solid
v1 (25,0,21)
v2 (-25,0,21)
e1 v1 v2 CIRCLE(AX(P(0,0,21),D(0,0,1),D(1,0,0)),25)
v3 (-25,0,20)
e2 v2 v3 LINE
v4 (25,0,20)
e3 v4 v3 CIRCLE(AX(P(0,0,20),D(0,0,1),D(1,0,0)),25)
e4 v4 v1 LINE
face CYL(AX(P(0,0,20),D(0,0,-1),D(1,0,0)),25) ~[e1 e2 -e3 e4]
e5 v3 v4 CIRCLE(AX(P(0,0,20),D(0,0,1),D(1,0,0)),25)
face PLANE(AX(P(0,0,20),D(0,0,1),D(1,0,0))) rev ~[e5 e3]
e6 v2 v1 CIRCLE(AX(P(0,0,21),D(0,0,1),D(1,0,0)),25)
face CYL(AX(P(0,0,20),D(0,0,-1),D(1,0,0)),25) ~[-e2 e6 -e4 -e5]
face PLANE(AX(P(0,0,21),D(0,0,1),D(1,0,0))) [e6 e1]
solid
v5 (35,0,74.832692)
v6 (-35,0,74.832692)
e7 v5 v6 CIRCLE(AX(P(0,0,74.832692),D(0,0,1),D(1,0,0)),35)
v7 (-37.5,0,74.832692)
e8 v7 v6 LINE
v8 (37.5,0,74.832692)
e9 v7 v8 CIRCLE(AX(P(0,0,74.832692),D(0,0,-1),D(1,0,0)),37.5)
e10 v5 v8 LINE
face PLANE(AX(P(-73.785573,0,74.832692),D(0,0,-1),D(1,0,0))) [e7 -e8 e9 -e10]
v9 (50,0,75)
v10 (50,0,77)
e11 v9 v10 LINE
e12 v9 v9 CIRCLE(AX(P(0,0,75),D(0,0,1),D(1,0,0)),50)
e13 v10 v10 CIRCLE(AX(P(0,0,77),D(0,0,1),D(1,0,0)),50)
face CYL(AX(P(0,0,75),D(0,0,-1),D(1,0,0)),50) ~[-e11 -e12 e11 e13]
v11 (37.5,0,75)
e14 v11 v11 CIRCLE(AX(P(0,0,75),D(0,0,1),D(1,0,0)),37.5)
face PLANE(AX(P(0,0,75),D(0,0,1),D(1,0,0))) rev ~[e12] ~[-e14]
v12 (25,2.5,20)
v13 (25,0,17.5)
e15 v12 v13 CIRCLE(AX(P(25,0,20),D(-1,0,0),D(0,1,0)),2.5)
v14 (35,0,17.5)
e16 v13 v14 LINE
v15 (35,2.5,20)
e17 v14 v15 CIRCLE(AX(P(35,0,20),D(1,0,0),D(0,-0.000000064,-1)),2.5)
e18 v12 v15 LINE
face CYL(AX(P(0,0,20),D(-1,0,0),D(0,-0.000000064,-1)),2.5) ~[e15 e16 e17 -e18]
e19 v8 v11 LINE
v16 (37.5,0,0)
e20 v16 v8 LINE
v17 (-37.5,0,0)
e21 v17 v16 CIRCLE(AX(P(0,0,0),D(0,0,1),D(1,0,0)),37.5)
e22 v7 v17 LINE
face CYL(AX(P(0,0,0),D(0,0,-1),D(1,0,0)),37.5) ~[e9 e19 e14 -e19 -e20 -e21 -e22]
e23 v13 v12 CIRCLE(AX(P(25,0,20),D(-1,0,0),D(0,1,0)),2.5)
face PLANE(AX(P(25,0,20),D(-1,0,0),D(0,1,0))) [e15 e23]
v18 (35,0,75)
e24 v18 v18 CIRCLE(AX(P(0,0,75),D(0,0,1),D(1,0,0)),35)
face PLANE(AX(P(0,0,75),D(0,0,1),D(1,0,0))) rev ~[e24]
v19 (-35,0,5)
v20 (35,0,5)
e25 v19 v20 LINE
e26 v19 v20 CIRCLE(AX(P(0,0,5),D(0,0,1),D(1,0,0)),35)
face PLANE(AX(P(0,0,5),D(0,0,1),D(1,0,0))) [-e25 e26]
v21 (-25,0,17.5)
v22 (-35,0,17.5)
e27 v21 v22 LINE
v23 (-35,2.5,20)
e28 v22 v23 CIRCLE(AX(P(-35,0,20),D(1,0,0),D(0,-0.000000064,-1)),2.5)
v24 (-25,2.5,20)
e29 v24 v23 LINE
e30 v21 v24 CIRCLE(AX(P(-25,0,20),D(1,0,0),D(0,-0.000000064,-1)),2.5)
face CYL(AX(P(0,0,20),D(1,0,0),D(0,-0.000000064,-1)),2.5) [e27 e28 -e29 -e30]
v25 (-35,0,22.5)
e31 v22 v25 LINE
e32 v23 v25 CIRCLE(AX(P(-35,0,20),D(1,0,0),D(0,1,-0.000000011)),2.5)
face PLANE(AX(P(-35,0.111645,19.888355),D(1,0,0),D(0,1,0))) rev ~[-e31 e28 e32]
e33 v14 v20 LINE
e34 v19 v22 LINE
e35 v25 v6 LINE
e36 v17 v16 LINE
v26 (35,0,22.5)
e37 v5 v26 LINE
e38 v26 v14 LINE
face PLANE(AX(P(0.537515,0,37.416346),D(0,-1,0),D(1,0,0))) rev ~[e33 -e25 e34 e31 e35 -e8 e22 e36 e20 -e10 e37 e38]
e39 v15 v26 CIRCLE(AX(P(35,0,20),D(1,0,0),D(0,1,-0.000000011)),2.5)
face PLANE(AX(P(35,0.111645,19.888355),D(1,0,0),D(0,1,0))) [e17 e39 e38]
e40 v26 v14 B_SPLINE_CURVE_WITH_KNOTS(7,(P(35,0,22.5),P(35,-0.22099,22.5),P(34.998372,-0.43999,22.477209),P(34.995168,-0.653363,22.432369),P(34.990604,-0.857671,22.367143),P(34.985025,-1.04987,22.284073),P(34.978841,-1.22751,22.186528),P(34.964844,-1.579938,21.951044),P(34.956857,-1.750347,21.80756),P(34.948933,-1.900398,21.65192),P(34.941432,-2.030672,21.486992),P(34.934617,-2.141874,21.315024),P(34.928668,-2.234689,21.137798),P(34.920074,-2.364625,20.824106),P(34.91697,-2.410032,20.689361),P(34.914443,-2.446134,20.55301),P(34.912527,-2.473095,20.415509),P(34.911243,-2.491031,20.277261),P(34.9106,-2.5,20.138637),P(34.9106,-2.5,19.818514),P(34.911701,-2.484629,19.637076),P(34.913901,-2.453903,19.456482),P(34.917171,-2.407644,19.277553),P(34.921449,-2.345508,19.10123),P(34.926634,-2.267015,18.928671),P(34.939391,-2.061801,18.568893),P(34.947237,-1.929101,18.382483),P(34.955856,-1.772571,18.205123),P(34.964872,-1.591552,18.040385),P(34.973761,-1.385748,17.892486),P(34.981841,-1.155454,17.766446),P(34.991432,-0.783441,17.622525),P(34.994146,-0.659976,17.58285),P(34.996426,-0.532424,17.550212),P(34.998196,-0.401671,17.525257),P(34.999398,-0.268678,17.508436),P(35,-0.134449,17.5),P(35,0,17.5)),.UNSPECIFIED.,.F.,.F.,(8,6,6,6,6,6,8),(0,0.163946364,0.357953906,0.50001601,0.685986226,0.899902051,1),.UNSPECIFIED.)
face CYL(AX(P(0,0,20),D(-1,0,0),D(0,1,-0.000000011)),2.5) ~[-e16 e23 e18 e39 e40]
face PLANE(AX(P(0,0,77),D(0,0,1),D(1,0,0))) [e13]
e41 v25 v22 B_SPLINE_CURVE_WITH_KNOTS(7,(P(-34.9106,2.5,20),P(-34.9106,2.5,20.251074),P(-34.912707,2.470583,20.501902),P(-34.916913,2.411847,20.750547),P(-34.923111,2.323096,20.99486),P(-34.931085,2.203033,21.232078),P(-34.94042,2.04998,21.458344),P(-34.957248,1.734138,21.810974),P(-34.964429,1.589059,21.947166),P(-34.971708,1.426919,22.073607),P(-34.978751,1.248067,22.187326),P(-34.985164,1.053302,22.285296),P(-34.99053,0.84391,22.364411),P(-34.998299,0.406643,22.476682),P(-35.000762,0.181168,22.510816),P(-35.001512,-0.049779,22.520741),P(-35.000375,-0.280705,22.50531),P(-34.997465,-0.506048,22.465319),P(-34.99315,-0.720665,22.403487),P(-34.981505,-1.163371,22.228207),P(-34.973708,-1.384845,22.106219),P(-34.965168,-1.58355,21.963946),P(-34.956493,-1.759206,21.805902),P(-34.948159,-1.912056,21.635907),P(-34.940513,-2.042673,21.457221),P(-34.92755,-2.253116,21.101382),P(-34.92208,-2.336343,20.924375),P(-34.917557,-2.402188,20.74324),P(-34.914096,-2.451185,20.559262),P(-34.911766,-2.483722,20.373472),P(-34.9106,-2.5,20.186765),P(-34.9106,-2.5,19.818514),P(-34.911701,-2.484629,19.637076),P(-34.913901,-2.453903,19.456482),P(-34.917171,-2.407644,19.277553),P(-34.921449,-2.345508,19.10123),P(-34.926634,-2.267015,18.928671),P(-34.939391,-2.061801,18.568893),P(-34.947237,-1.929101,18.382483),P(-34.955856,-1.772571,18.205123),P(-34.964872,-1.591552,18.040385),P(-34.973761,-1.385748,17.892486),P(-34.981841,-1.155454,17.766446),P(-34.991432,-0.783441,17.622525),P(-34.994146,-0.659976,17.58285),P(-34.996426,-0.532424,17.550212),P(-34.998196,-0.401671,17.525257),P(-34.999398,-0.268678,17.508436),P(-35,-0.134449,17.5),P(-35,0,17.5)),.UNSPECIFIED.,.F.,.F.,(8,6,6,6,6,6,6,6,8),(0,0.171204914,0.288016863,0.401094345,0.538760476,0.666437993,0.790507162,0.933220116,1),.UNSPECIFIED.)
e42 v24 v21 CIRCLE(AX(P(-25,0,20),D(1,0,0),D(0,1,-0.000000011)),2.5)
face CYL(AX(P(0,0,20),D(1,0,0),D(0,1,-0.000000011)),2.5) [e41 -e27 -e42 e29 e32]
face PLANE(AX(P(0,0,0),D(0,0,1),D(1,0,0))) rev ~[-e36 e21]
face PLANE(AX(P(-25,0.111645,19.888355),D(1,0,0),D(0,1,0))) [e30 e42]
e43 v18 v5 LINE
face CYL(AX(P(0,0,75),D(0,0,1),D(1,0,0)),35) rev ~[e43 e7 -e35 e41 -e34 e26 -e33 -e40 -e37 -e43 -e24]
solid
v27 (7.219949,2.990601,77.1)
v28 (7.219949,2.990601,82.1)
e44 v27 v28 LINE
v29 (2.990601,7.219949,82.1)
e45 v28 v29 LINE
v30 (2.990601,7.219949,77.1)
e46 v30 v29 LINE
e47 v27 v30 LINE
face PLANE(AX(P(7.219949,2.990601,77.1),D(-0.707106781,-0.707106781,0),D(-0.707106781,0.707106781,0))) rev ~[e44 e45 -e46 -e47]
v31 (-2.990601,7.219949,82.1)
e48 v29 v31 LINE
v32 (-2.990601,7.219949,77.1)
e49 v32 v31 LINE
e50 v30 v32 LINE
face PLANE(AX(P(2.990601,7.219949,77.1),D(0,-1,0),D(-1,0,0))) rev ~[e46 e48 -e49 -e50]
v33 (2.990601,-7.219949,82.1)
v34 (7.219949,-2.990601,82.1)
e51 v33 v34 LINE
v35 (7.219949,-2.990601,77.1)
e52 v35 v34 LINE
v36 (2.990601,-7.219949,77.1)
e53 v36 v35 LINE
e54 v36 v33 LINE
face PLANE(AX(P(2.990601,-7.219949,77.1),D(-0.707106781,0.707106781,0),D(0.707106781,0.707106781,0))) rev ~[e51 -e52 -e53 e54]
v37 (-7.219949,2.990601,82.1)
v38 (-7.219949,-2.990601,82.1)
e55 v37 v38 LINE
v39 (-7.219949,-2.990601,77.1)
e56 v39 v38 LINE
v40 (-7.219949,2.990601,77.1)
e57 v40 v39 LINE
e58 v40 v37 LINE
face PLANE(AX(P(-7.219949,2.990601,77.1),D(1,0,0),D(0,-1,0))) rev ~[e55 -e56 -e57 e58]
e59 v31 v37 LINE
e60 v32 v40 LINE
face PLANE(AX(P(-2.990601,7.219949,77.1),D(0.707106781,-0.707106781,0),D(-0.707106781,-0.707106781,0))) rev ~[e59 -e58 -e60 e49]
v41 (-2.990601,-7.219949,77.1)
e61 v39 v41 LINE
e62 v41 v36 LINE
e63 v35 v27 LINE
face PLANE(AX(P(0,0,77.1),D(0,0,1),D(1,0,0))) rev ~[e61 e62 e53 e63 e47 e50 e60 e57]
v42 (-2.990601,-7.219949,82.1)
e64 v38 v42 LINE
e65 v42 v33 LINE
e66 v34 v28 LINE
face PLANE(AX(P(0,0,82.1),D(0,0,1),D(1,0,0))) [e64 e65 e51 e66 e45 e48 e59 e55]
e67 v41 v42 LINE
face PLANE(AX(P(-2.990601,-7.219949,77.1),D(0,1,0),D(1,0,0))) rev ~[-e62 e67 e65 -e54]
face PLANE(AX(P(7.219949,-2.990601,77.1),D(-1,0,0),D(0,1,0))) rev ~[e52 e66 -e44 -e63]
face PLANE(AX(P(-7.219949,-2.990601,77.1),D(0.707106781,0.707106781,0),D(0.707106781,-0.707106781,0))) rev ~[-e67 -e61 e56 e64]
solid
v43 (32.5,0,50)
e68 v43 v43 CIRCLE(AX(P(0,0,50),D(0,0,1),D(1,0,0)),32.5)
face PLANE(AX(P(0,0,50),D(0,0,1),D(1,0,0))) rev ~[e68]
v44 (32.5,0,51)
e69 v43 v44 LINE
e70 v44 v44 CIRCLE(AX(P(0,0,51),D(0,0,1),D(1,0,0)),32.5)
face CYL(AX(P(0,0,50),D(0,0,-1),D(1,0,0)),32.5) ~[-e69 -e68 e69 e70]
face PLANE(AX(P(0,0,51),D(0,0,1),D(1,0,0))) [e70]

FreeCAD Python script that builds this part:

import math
import FreeCAD as App
import Part
import Sketcher

V = App.Vector
Q = App.Units.Quantity

doc = App.newDocument("Part")
body = doc.addObject("PartDesign::Body", "Body")
body.AllowCompound = True

# Sketch on XY plane
sketch1 = doc.addObject("Sketcher::SketchObject", "Sketch")
body.addObject(sketch1)
sketch1.AttachmentSupport = (doc.XY_Plane, [""])
sketch1.MapMode = "FlatFace"
sketch1.addGeometry(Part.Circle(V(0, 0, 0), V(0, 0, 1), 38), False)
sketch1.addConstraint([
    Sketcher.Constraint("Coincident", 0, 3, -1, 1),
    Sketcher.Constraint("Diameter", 0, Q("75 mm")),
])
pad1 = doc.addObject("PartDesign::Pad", "Pad")
body.addObject(pad1)
pad1.Profile = sketch1
pad1.Length = 75

# Sketch on XY plane
sketch2 = doc.addObject("Sketcher::SketchObject", "Sketch001")
body.addObject(sketch2)
sketch2.AttachmentSupport = (doc.XY_Plane, [""])
sketch2.MapMode = "FlatFace"
sketch2.AttachmentOffset = App.Placement(V(0, 0, 75), App.Rotation())
sketch2.addGeometry(Part.Circle(V(0, 0, 0), V(0, 0, 1), 35), False)
sketch2.addConstraint([
    Sketcher.Constraint("Coincident", 0, 3, -1, 1),
    Sketcher.Constraint("Diameter", 0, Q("70 mm")),
])
pocket1 = doc.addObject("PartDesign::Pocket", "Pocket")
body.addObject(pocket1)
pocket1.Profile = sketch2
pocket1.Length = 70

# Sketch on XZ plane
sketch3 = doc.addObject("Sketcher::SketchObject", "Sketch002")
body.addObject(sketch3)
sketch3.AttachmentSupport = (doc.XZ_Plane, [""])
sketch3.MapMode = "FlatFace"
sketch3.addGeometry([
    Part.LineSegment(V(-74, 75, 0), V(-74, 0, 0)),
    Part.LineSegment(V(-74, 0, 0), V(75, 0, 0)),
    Part.LineSegment(V(75, 0, 0), V(75, 75, 0)),
    Part.LineSegment(V(75, 75, 0), V(-74, 75, 0)),
], False)
sketch3.addConstraint([
    Sketcher.Constraint("Coincident", 0, 2, 1, 1),
    Sketcher.Constraint("Coincident", 1, 2, 2, 1),
    Sketcher.Constraint("Coincident", 2, 2, 3, 1),
    Sketcher.Constraint("Coincident", 3, 2, 0, 1),
    Sketcher.Constraint("Vertical", 0),
    Sketcher.Constraint("Horizontal", 1),
    Sketcher.Constraint("Vertical", 2),
    Sketcher.Constraint("Horizontal", 3),
    Sketcher.Constraint("PointOnObject", 0, 2, -1),
    Sketcher.Constraint("DistanceX", 1, 1, 1, 2, Q("148.646176 mm")),
    Sketcher.Constraint("DistanceY", 0, 2, 0, 1, Q("74.832693 mm")),
    Sketcher.Constraint("DistanceX", 0, 2, -1, 1, Q("73.785573 mm")),
])
pocket2 = doc.addObject("PartDesign::Pocket", "Pocket001")
body.addObject(pocket2)
pocket2.Profile = sketch3
pocket2.Length = 46

# Sketch on YZ plane
sketch4 = doc.addObject("Sketcher::SketchObject", "Sketch003")
body.addObject(sketch4)
sketch4.AttachmentSupport = (doc.YZ_Plane, [""])
sketch4.MapMode = "FlatFace"
sketch4.addGeometry([
    Part.ArcOfCircle(Part.Circle(V(0, 20, 0), V(0, 0, 1), 2.5), math.radians(-90), math.radians(0)),
    Part.ArcOfCircle(Part.Circle(V(0, 20, 0), V(0, 0, 1), 2.5), math.radians(0), math.radians(270)),
], False)
sketch4.addConstraint([
    Sketcher.Constraint("Tangent", 0, 1, 1, 2),
    Sketcher.Constraint("Coincident", 1, 1, 0, 2),
    Sketcher.Constraint("PointOnObject", 0, 3, -2),
    Sketcher.Constraint("PointOnObject", 0, 1, -2),
    Sketcher.Constraint("Horizontal", 0, 3, 1, 1),
    Sketcher.Constraint("Radius", 0, Q("2.5 mm")),
    Sketcher.Constraint("DistanceY", -1, 1, 0, 3, Q("20 mm")),
])
pad2 = doc.addObject("PartDesign::Pad", "Pad001")
body.addObject(pad2)
pad2.Profile = sketch4
pad2.Length = 35

# Sketch on YZ plane
sketch5 = doc.addObject("Sketcher::SketchObject", "Sketch004")
body.addObject(sketch5)
sketch5.AttachmentSupport = (doc.YZ_Plane, [""])
sketch5.MapMode = "FlatFace"
sketch5.addGeometry(Part.Circle(V(0, 20, 0), V(0, 0, 1), 2.5), False)
sketch5.addConstraint([
    Sketcher.Constraint("PointOnObject", 0, 3, -2),
    Sketcher.Constraint("Diameter", 0, Q("5 mm")),
    Sketcher.Constraint("DistanceY", -1, 1, 0, 3, Q("20 mm")),
])
pocket3 = doc.addObject("PartDesign::Pocket", "Pocket002")
body.addObject(pocket3)
pocket3.Profile = sketch5
pocket3.Length = 25
pocket3.Reversed = True

# Sketch on YZ plane
sketch6 = doc.addObject("Sketcher::SketchObject", "Sketch005")
body.addObject(sketch6)
sketch6.AttachmentSupport = (doc.YZ_Plane, [""])
sketch6.MapMode = "FlatFace"
sketch6.addGeometry([
    Part.ArcOfCircle(Part.Circle(V(0, 20, 0), V(0, 0, 1), 2.5), math.radians(-90), math.radians(0)),
    Part.ArcOfCircle(Part.Circle(V(0, 20, 0), V(0, 0, 1), 2.5), math.radians(0), math.radians(270)),
], False)
sketch6.addConstraint([
    Sketcher.Constraint("Tangent", 0, 1, 1, 2),
    Sketcher.Constraint("Coincident", 1, 1, 0, 2),
    Sketcher.Constraint("PointOnObject", 0, 3, -2),
    Sketcher.Constraint("PointOnObject", 0, 1, -2),
    Sketcher.Constraint("Horizontal", 0, 3, 1, 1),
    Sketcher.Constraint("Radius", 0, Q("2.5 mm")),
    Sketcher.Constraint("DistanceY", -1, 1, 0, 3, Q("20 mm")),
])
pad3 = doc.addObject("PartDesign::Pad", "Pad002")
body.addObject(pad3)
pad3.Profile = sketch6
pad3.Length = 35
pad3.Reversed = True

# Sketch on YZ plane
sketch7 = doc.addObject("Sketcher::SketchObject", "Sketch006")
body.addObject(sketch7)
sketch7.AttachmentSupport = (doc.YZ_Plane, [""])
sketch7.MapMode = "FlatFace"
sketch7.addGeometry([
    Part.ArcOfCircle(Part.Circle(V(0, 20, 0), V(0, 0, 1), 2.5), math.radians(-90), math.radians(0)),
    Part.ArcOfCircle(Part.Circle(V(0, 20, 0), V(0, 0, 1), 2.5), math.radians(0), math.radians(270)),
], False)
sketch7.addConstraint([
    Sketcher.Constraint("Tangent", 0, 1, 1, 2),
    Sketcher.Constraint("Coincident", 1, 1, 0, 2),
    Sketcher.Constraint("PointOnObject", 0, 3, -2),
    Sketcher.Constraint("PointOnObject", 0, 1, -2),
    Sketcher.Constraint("Horizontal", 0, 3, 1, 1),
    Sketcher.Constraint("Radius", 0, Q("2.5 mm")),
    Sketcher.Constraint("DistanceY", -1, 1, 0, 3, Q("20 mm")),
])
pocket4 = doc.addObject("PartDesign::Pocket", "Pocket003")
body.addObject(pocket4)
pocket4.Profile = sketch7
pocket4.Length = 25

# Sketch on XY plane
sketch8 = doc.addObject("Sketcher::SketchObject", "Sketch007")
body.addObject(sketch8)
sketch8.AttachmentSupport = (doc.XY_Plane, [""])
sketch8.MapMode = "FlatFace"
sketch8.AttachmentOffset = App.Placement(V(0, 0, 20), App.Rotation())
sketch8.addGeometry(Part.Circle(V(0, 0, 0), V(0, 0, 1), 25), False)
sketch8.addConstraint([
    Sketcher.Constraint("Coincident", 0, 3, -1, 1),
    Sketcher.Constraint("Diameter", 0, Q("50 mm")),
])
pad4 = doc.addObject("PartDesign::Pad", "Pad003")
body.addObject(pad4)
pad4.Profile = sketch8
pad4.Length = 1

# Sketch on XY plane
sketch9 = doc.addObject("Sketcher::SketchObject", "Sketch008")
body.addObject(sketch9)
sketch9.AttachmentSupport = (doc.XY_Plane, [""])
sketch9.MapMode = "FlatFace"
sketch9.AttachmentOffset = App.Placement(V(0, 0, 75), App.Rotation())
sketch9.addGeometry(Part.Circle(V(0, 0, 0), V(0, 0, 1), 50), False)
sketch9.addConstraint([
    Sketcher.Constraint("Coincident", 0, 3, -1, 1),
    Sketcher.Constraint("Diameter", 0, Q("100 mm")),
])
pad5 = doc.addObject("PartDesign::Pad", "Pad004")
body.addObject(pad5)
pad5.Profile = sketch9
pad5.Length = 2
body2 = doc.addObject("PartDesign::Body", "Body001")

# Sketch on XY plane
sketch10 = doc.addObject("Sketcher::SketchObject", "Sketch009")
body2.addObject(sketch10)
sketch10.AttachmentSupport = (doc.getObject("XY_Plane001"), [""])
sketch10.MapMode = "FlatFace"
sketch10.AttachmentOffset = App.Placement(V(0, 0, 50), App.Rotation())
sketch10.addGeometry(Part.Circle(V(0, 0, 0), V(0, 0, 1), 32), False)
sketch10.addConstraint([
    Sketcher.Constraint("Coincident", 0, 3, -1, 1),
    Sketcher.Constraint("Diameter", 0, Q("65 mm")),
])
pad6 = doc.addObject("PartDesign::Pad", "Pad005")
body2.addObject(pad6)
pad6.Profile = sketch10
pad6.Length = 1
body3 = doc.addObject("PartDesign::Body", "Body002")

# Sketch on XY plane
sketch11 = doc.addObject("Sketcher::SketchObject", "Sketch010")
body3.addObject(sketch11)
sketch11.AttachmentSupport = (doc.getObject("XY_Plane002"), [""])
sketch11.MapMode = "FlatFace"
sketch11.AttachmentOffset = App.Placement(V(0, 0, 77.1), App.Rotation())
sketch11.addGeometry([
    Part.LineSegment(V(7, -3, 0), V(7, 3, 0)),  # 0
    Part.LineSegment(V(7, 3, 0), V(3, 7, 0)),  # 1
    Part.LineSegment(V(3, 7, 0), V(-3, 7, 0)),  # 2
    Part.LineSegment(V(-3, 7, 0), V(-7, 3, 0)),  # 3
    Part.LineSegment(V(-7, 3, 0), V(-7, -3, 0)),  # 4
    Part.LineSegment(V(-7, -3, 0), V(-3, -7, 0)),  # 5
    Part.LineSegment(V(-3, -7, 0), V(3, -7, 0)),  # 6
    Part.LineSegment(V(3, -7, 0), V(7, -3, 0)),  # 7
], False)
sketch11.addConstraint([
    Sketcher.Constraint("Coincident", 0, 2, 1, 1),
    Sketcher.Constraint("Coincident", 1, 2, 2, 1),
    Sketcher.Constraint("Coincident", 2, 2, 3, 1),
    Sketcher.Constraint("Coincident", 3, 2, 4, 1),
    Sketcher.Constraint("Coincident", 4, 2, 5, 1),
    Sketcher.Constraint("Coincident", 5, 2, 6, 1),
    Sketcher.Constraint("Coincident", 6, 2, 7, 1),
    Sketcher.Constraint("Coincident", 7, 2, 0, 1),
    Sketcher.Constraint("Vertical", 0),
    Sketcher.Constraint("Horizontal", 2),
    Sketcher.Constraint("Vertical", 4),
    Sketcher.Constraint("Horizontal", 6),
    Sketcher.Constraint("Symmetric", 0, 2, 4, 2, -1, 1),
    Sketcher.Constraint("Symmetric", 1, 2, 5, 2, -1, 1),
    Sketcher.Constraint("Perpendicular", 1, 3),
    Sketcher.Constraint("Perpendicular", 5, 7),
    Sketcher.Constraint("Horizontal", 0, 2, 3, 2),
    Sketcher.Constraint("Horizontal", 4, 2, 7, 2),
    Sketcher.Constraint("Vertical", 2, 2, 5, 2),
    Sketcher.Constraint("Equal", 6, 0),
    Sketcher.Constraint("DistanceX", 2, 2, 2, 1, Q("5.981202 mm")),
    Sketcher.Constraint("Distance", 1, Q("5.981201 mm")),
])
pad7 = doc.addObject("PartDesign::Pad", "Pad006")
body3.addObject(pad7)
pad7.Profile = sketch11
pad7.Length = 5

doc.recompute()
